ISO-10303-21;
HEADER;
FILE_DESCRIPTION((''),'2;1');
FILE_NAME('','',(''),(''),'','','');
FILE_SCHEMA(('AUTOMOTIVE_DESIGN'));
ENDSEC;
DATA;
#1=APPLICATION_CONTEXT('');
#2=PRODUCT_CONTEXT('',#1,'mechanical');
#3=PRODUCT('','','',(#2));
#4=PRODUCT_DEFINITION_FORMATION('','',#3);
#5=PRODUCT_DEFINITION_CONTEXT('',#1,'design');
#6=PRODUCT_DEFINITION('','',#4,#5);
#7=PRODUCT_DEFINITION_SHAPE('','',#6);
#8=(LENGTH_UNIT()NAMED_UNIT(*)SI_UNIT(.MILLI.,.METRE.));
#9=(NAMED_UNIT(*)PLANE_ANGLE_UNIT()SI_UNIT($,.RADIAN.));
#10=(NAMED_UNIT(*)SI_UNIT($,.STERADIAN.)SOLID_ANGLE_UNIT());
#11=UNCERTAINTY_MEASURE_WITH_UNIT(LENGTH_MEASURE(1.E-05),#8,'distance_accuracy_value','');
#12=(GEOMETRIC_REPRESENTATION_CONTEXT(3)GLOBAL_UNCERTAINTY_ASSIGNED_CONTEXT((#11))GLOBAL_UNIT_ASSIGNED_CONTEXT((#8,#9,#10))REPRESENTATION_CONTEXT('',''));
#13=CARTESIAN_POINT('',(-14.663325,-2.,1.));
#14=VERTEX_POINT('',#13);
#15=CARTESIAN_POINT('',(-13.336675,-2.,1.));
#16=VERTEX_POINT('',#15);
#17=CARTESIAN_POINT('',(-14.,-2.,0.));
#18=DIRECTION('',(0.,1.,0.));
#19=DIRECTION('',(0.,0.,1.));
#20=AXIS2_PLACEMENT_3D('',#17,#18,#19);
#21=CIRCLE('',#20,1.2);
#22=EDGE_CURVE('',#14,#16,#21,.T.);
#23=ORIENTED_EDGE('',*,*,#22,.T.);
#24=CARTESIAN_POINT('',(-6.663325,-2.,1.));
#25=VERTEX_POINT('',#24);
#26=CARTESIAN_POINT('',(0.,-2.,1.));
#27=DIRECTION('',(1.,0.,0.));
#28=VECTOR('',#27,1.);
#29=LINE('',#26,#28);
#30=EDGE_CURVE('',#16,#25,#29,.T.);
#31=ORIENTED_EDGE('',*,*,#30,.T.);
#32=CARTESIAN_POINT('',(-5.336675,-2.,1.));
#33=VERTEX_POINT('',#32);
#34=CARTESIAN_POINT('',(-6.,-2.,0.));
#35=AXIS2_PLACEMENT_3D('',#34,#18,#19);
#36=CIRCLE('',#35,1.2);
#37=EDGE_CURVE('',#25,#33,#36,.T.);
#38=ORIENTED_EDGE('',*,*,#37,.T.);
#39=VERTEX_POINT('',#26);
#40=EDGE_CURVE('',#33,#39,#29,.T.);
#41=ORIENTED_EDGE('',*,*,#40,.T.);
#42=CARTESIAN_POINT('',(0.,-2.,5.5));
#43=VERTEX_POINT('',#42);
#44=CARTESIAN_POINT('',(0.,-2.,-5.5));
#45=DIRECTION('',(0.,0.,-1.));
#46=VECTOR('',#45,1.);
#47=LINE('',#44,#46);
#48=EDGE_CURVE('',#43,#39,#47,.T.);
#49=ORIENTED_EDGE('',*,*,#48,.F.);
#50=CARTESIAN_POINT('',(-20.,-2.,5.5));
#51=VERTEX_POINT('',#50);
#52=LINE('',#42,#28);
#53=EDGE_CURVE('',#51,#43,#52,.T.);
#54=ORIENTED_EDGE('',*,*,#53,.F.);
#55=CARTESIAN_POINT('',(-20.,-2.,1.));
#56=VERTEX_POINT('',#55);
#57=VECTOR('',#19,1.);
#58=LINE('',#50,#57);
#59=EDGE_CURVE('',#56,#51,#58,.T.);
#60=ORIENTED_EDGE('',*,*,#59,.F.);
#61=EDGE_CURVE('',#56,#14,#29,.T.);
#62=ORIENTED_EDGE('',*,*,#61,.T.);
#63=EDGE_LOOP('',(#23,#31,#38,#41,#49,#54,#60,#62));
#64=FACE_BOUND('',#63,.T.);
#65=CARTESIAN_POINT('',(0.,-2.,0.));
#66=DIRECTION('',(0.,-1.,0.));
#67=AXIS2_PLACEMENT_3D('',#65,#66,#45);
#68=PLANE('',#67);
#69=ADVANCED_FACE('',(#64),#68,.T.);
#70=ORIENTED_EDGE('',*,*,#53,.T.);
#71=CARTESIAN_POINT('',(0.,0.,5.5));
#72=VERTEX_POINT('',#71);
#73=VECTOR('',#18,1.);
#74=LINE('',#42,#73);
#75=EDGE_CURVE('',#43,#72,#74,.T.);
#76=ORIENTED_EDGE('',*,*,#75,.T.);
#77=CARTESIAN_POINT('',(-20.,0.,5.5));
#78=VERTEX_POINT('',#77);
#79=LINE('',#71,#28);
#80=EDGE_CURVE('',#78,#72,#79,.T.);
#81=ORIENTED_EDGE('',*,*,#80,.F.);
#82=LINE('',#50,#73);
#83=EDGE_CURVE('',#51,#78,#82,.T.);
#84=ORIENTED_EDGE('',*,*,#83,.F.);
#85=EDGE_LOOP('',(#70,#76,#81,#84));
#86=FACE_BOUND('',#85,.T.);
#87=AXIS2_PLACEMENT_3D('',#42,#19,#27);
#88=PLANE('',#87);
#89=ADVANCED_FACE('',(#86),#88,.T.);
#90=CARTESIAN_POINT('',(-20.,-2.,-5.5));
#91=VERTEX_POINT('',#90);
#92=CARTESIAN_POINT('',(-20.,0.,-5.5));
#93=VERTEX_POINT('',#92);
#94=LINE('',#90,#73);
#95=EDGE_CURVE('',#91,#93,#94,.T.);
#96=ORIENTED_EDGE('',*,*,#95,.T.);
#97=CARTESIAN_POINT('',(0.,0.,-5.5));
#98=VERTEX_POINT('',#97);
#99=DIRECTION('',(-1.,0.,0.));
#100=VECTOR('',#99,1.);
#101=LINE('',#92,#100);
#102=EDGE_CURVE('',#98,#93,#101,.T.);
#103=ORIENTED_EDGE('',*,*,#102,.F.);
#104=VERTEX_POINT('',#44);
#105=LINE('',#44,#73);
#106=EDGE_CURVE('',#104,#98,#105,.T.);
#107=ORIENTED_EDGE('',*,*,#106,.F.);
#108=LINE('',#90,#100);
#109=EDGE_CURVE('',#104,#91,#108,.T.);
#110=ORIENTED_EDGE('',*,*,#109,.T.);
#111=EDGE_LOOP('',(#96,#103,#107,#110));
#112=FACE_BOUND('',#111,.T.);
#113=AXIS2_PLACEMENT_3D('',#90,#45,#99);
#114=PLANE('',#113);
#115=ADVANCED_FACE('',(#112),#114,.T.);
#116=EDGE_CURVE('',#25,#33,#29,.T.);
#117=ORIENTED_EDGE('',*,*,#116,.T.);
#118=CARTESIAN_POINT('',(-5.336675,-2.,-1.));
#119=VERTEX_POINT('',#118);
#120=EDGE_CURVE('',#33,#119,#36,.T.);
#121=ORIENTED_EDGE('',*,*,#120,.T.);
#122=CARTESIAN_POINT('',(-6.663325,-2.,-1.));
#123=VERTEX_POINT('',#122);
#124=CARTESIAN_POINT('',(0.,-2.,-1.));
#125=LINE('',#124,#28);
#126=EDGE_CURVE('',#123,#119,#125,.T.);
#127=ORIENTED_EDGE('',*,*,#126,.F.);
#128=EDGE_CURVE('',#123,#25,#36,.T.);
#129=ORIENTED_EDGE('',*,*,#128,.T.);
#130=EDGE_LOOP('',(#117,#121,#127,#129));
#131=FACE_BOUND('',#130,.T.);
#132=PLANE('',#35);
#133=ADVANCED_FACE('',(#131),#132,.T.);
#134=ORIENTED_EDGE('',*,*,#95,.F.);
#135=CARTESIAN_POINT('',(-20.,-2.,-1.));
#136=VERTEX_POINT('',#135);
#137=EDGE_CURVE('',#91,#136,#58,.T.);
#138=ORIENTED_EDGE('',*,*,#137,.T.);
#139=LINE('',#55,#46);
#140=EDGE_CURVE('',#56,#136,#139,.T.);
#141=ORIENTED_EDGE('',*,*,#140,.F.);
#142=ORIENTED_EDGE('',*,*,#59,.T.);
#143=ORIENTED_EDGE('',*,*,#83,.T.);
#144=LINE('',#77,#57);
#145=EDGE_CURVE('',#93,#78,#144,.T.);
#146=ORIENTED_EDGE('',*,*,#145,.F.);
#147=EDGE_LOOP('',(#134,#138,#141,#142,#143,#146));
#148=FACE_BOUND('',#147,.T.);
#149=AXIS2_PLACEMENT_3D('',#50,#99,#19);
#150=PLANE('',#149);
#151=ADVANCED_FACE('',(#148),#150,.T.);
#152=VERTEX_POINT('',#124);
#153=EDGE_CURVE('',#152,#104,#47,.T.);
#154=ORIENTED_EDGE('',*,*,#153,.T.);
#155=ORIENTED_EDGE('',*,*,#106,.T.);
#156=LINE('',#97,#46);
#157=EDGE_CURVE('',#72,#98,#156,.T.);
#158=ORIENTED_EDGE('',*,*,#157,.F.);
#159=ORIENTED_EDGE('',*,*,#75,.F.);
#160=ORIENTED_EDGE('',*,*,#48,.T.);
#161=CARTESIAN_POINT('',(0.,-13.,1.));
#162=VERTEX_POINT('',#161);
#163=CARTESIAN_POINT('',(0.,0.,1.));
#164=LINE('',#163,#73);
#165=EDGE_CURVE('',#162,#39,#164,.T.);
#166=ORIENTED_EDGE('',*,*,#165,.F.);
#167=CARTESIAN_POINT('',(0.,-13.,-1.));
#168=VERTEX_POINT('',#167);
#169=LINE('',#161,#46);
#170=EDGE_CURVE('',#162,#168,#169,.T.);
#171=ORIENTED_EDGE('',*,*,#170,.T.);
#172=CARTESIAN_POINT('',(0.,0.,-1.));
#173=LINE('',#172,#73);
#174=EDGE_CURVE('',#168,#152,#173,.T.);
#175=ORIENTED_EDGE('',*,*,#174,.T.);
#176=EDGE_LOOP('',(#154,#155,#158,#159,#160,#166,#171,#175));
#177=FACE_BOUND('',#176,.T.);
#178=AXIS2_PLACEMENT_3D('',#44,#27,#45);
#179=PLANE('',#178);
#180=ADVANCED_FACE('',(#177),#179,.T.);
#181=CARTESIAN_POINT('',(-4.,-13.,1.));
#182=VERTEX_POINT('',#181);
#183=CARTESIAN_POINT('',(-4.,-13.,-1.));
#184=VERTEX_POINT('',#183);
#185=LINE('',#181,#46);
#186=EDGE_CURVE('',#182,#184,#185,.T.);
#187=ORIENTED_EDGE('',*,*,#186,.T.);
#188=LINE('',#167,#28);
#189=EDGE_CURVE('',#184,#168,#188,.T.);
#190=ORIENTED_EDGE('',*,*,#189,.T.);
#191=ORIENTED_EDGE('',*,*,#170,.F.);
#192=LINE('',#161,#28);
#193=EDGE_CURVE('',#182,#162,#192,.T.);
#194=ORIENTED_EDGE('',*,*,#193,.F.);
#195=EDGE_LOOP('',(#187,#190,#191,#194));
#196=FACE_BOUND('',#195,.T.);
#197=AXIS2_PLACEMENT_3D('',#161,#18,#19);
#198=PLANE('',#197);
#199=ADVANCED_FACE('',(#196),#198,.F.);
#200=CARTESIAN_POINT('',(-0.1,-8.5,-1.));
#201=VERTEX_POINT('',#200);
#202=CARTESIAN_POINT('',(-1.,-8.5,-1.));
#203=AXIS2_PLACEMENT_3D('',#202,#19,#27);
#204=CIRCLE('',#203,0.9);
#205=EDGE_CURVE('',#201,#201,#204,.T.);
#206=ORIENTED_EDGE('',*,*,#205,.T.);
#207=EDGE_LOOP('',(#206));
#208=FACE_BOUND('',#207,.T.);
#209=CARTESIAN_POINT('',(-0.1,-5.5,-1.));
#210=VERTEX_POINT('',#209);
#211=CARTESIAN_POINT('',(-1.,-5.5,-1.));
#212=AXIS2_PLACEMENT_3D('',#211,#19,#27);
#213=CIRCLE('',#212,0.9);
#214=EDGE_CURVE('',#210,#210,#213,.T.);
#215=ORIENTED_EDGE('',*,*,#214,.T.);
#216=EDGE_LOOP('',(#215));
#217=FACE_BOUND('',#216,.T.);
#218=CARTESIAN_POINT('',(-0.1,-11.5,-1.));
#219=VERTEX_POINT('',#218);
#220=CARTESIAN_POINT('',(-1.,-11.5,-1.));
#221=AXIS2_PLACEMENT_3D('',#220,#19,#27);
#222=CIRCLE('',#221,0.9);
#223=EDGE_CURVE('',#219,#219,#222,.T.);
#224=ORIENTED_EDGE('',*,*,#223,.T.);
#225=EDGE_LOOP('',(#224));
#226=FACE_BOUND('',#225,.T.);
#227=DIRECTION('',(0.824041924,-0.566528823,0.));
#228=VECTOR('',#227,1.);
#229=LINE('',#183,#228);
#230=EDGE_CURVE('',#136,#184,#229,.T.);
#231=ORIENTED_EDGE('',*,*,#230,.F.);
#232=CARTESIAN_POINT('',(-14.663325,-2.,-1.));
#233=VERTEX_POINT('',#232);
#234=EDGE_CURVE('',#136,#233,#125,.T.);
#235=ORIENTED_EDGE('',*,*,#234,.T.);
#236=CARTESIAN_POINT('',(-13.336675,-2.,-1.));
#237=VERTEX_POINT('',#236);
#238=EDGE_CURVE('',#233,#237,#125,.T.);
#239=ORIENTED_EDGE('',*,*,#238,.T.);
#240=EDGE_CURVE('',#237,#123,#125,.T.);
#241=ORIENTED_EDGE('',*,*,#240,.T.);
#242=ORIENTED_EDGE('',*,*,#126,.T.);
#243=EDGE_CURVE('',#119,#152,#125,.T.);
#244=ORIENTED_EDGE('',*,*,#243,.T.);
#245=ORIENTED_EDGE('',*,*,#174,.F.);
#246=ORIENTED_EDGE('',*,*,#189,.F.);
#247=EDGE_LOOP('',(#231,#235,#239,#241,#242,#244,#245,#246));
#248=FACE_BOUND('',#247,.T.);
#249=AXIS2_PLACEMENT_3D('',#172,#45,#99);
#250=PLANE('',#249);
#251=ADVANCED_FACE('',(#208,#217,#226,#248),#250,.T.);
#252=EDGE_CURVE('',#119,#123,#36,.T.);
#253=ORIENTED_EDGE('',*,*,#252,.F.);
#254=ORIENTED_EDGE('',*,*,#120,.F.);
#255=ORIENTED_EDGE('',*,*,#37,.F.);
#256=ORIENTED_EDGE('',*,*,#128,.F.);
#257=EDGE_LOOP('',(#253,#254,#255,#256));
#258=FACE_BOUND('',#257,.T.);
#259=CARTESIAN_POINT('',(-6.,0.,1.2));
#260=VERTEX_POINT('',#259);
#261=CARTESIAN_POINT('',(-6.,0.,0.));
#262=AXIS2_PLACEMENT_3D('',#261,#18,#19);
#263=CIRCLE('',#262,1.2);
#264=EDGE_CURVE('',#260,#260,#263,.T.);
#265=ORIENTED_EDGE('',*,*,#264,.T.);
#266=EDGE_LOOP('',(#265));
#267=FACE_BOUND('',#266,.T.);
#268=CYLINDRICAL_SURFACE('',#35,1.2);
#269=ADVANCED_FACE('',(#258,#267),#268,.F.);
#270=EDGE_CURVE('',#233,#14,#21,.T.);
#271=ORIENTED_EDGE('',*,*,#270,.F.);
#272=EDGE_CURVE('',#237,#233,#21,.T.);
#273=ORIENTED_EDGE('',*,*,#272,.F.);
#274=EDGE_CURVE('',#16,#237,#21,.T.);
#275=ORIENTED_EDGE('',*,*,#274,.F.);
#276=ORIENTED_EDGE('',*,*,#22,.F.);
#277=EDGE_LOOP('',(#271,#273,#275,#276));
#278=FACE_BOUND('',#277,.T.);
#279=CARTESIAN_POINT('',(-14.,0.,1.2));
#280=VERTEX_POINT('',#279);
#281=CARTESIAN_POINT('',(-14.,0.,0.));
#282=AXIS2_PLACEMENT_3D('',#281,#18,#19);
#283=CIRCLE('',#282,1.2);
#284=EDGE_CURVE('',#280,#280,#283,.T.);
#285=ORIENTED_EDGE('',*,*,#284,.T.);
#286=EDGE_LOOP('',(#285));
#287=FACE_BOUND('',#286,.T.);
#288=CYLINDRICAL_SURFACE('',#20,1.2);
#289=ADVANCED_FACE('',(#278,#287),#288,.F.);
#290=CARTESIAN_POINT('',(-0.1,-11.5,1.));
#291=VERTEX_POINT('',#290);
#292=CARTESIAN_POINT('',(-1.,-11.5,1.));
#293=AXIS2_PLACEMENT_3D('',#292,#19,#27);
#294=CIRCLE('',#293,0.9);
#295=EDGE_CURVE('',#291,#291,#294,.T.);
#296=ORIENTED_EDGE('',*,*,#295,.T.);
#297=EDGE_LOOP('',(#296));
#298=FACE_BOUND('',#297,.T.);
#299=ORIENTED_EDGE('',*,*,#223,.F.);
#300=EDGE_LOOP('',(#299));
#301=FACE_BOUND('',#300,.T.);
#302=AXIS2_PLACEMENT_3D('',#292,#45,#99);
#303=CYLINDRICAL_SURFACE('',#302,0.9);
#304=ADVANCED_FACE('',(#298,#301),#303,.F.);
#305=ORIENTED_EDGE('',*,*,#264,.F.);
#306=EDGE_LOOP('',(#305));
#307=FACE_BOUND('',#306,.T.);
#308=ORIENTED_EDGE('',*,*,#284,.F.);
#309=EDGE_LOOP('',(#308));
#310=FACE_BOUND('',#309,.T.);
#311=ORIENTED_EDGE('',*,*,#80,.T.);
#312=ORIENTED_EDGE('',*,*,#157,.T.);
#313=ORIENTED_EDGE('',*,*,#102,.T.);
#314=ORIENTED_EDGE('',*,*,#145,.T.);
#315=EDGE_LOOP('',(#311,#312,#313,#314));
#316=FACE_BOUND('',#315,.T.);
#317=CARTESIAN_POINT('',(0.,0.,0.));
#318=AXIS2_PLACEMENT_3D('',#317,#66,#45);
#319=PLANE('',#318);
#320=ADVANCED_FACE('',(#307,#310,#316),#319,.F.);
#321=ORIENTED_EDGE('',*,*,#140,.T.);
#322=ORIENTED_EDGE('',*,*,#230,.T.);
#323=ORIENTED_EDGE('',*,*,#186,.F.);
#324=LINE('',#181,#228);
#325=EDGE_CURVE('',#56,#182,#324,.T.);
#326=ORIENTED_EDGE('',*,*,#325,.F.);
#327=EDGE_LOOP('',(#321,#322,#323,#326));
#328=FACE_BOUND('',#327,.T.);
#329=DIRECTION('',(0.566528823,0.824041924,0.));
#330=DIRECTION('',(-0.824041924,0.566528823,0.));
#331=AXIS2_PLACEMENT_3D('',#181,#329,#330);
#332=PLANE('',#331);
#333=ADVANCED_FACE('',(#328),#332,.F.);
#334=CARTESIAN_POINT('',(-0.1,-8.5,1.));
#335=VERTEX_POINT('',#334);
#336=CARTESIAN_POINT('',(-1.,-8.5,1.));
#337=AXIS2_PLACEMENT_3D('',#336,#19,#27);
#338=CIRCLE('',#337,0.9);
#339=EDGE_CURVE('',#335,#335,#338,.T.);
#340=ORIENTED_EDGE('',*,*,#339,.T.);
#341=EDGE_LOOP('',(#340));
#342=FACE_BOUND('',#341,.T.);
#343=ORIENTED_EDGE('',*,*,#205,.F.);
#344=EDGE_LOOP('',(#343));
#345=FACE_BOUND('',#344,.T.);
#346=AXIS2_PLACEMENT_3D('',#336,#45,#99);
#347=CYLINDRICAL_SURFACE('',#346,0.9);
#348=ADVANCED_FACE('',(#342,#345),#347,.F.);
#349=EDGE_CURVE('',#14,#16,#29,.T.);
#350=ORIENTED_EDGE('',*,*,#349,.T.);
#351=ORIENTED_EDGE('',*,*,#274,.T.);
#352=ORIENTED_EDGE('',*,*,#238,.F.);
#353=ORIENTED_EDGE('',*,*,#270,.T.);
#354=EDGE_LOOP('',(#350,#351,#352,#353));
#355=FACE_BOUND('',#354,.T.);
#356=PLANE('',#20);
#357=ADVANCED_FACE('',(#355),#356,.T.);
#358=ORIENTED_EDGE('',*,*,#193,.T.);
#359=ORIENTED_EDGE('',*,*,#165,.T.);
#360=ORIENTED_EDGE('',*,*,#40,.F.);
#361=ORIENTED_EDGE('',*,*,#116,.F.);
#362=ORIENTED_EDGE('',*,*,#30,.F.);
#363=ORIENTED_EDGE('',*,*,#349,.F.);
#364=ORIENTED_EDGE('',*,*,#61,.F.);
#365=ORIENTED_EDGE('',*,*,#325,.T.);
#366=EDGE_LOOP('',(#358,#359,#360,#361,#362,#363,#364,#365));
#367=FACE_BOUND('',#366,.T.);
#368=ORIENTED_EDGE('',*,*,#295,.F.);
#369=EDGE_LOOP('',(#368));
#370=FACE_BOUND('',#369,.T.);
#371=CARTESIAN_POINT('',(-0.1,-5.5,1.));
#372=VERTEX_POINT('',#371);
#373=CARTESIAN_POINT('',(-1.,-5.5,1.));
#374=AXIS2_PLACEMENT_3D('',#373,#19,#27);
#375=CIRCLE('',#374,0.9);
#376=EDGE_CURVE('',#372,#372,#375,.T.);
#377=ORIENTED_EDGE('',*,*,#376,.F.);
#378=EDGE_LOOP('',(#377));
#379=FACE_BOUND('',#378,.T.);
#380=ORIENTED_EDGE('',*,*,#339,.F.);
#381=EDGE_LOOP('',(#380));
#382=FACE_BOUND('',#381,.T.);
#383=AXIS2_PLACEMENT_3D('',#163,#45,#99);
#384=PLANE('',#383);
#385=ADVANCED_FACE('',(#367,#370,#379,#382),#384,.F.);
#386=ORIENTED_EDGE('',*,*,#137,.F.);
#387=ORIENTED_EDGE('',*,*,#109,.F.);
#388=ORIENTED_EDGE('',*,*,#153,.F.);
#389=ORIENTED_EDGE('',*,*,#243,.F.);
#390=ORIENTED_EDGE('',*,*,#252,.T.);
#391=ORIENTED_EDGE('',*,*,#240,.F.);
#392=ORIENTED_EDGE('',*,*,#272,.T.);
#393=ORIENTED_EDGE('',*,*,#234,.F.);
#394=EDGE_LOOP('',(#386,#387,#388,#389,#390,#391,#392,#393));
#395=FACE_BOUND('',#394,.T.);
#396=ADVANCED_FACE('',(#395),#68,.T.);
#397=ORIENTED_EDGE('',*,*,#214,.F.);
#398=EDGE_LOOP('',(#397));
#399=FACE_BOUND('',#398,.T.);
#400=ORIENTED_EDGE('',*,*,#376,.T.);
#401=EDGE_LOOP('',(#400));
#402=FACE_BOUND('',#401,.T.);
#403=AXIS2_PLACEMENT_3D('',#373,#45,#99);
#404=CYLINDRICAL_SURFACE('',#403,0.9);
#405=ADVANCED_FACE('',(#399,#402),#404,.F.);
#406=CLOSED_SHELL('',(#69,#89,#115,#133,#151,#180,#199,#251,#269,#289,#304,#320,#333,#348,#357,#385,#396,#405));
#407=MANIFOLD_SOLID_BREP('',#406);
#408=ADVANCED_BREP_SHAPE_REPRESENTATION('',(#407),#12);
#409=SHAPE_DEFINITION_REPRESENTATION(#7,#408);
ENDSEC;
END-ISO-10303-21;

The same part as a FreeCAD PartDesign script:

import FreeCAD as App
import Part
import Sketcher

V = App.Vector


def add_polygon(sketch, points):
    """Adds a closed chain of lines whose ends are joined by coincident constraints."""
    first, n = sketch.GeometryCount, len(points)
    for a, b in zip(points, points[1:] + points[:1]):
        sketch.addGeometry(Part.LineSegment(App.Vector(*a, 0), App.Vector(*b, 0)), False)
    for i in range(n):
        sketch.addConstraint(Sketcher.Constraint("Coincident", first + i, 2, first + (i + 1) % n, 1))

doc = App.newDocument("Part")
body = doc.addObject("PartDesign::Body", "Body")

sketch1 = body.newObject("Sketcher::SketchObject", "Sketch")
sketch1.AttachmentSupport = (doc.getObject("XZ_Plane"), [""])
sketch1.MapMode = "FlatFace"
add_polygon(sketch1, [(-20, -6), (-20, 6), (0, 6), (0, -6)])
sketch1.addConstraint(Sketcher.Constraint("Vertical", 0))
sketch1.addConstraint(Sketcher.Constraint("Horizontal", 1))
sketch1.addConstraint(Sketcher.Constraint("Vertical", 2))
sketch1.addConstraint(Sketcher.Constraint("Horizontal", 3))
sketch1.addConstraint(Sketcher.Constraint("Symmetric", 1, 2, 2, 2, -1, 1))
sketch1.addConstraint(Sketcher.Constraint("DistanceX", 1, 1, 1, 2, 20.0))
sketch1.addConstraint(Sketcher.Constraint("DistanceY", 0, 1, 0, 2, 11.0))
pad1 = body.newObject("PartDesign::Pad", "Pad")
pad1.Profile = sketch1
pad1.Length = 2

sketch2 = body.newObject("Sketcher::SketchObject", "Sketch001")
sketch2.AttachmentSupport = (doc.getObject("XY_Plane"), [""])
sketch2.MapMode = "FlatFace"
sketch2.AttachmentOffset = App.Placement(V(0, 0, -1), App.Rotation())
add_polygon(sketch2, [(0, -13), (0, 0), (-20, 0), (-20, -2), (-4, -13)])
sketch2.addConstraint(Sketcher.Constraint("Vertical", 0))
sketch2.addConstraint(Sketcher.Constraint("Horizontal", 1))
sketch2.addConstraint(Sketcher.Constraint("Vertical", 2))
sketch2.addConstraint(Sketcher.Constraint("Horizontal", 4))
sketch2.addConstraint(Sketcher.Constraint("Coincident", 0, 2, -1, 1))
sketch2.addConstraint(Sketcher.Constraint("DistanceX", 1, 2, 1, 1, 20.0))
sketch2.addConstraint(Sketcher.Constraint("DistanceX", 4, 1, 4, 2, 4.0))
sketch2.addConstraint(Sketcher.Constraint("DistanceY", 0, 1, 0, 2, 13.0))
sketch2.addConstraint(Sketcher.Constraint("DistanceY", 2, 2, 2, 1, 2.0))
pad2 = body.newObject("PartDesign::Pad", "Pad001")
pad2.Profile = sketch2
pad2.Length = 2

sketch3 = body.newObject("Sketcher::SketchObject", "Sketch002")
sketch3.AttachmentSupport = (doc.getObject("XY_Plane"), [""])
sketch3.MapMode = "FlatFace"
sketch3.AttachmentOffset = App.Placement(V(0, 0, -1), App.Rotation())
sketch3.addGeometry(Part.Circle(V(-1, -5.5, 0), V(0, 0, 1), 0.9), False)
sketch3.addGeometry(Part.Circle(V(-1, -8.5, 0), V(0, 0, 1), 0.9), False)
sketch3.addGeometry(Part.Circle(V(-1, -11.5, 0), V(0, 0, 1), 0.9), False)
sketch3.addConstraint(Sketcher.Constraint("Equal", 0, 1))
sketch3.addConstraint(Sketcher.Constraint("Equal", 1, 2))
sketch3.addConstraint(Sketcher.Constraint("Vertical", 0, 3, 1, 3))
sketch3.addConstraint(Sketcher.Constraint("Vertical", 1, 3, 2, 3))
sketch3.addConstraint(Sketcher.Constraint("Diameter", 0, 1.8))
sketch3.addConstraint(Sketcher.Constraint("DistanceX", 0, 3, -1, 1, 1.0))
sketch3.addConstraint(Sketcher.Constraint("DistanceY", 1, 3, 0, 3, 3.0))
sketch3.addConstraint(Sketcher.Constraint("DistanceY", 2, 3, 1, 3, 3.0))
sketch3.addConstraint(Sketcher.Constraint("DistanceY", 0, 3, -1, 1, 5.5))
pocket1 = body.newObject("PartDesign::Pocket", "Pocket")
pocket1.Profile = sketch3
pocket1.Length = 2
pocket1.Reversed = True

sketch4 = body.newObject("Sketcher::SketchObject", "Sketch003")
sketch4.AttachmentSupport = (doc.getObject("XZ_Plane"), [""])
sketch4.MapMode = "FlatFace"
sketch4.addGeometry(Part.Circle(V(-6, 0, 0), V(0, 0, 1), 1.2), False)
sketch4.addGeometry(Part.Circle(V(-14, 0, 0), V(0, 0, 1), 1.2), False)
sketch4.addConstraint(Sketcher.Constraint("Equal", 0, 1))
sketch4.addConstraint(Sketcher.Constraint("PointOnObject", 0, 3, -1))
sketch4.addConstraint(Sketcher.Constraint("PointOnObject", 1, 3, -1))
sketch4.addConstraint(Sketcher.Constraint("Diameter", 0, 2.4))
sketch4.addConstraint(Sketcher.Constraint("DistanceX", 0, 3, -1, 1, 6.0))
sketch4.addConstraint(Sketcher.Constraint("DistanceX", 1, 3, -1, 1, 14.0))
pocket2 = body.newObject("PartDesign::Pocket", "Pocket001")
pocket2.Profile = sketch4
pocket2.Length = 2
pocket2.Reversed = True

doc.recompute()
